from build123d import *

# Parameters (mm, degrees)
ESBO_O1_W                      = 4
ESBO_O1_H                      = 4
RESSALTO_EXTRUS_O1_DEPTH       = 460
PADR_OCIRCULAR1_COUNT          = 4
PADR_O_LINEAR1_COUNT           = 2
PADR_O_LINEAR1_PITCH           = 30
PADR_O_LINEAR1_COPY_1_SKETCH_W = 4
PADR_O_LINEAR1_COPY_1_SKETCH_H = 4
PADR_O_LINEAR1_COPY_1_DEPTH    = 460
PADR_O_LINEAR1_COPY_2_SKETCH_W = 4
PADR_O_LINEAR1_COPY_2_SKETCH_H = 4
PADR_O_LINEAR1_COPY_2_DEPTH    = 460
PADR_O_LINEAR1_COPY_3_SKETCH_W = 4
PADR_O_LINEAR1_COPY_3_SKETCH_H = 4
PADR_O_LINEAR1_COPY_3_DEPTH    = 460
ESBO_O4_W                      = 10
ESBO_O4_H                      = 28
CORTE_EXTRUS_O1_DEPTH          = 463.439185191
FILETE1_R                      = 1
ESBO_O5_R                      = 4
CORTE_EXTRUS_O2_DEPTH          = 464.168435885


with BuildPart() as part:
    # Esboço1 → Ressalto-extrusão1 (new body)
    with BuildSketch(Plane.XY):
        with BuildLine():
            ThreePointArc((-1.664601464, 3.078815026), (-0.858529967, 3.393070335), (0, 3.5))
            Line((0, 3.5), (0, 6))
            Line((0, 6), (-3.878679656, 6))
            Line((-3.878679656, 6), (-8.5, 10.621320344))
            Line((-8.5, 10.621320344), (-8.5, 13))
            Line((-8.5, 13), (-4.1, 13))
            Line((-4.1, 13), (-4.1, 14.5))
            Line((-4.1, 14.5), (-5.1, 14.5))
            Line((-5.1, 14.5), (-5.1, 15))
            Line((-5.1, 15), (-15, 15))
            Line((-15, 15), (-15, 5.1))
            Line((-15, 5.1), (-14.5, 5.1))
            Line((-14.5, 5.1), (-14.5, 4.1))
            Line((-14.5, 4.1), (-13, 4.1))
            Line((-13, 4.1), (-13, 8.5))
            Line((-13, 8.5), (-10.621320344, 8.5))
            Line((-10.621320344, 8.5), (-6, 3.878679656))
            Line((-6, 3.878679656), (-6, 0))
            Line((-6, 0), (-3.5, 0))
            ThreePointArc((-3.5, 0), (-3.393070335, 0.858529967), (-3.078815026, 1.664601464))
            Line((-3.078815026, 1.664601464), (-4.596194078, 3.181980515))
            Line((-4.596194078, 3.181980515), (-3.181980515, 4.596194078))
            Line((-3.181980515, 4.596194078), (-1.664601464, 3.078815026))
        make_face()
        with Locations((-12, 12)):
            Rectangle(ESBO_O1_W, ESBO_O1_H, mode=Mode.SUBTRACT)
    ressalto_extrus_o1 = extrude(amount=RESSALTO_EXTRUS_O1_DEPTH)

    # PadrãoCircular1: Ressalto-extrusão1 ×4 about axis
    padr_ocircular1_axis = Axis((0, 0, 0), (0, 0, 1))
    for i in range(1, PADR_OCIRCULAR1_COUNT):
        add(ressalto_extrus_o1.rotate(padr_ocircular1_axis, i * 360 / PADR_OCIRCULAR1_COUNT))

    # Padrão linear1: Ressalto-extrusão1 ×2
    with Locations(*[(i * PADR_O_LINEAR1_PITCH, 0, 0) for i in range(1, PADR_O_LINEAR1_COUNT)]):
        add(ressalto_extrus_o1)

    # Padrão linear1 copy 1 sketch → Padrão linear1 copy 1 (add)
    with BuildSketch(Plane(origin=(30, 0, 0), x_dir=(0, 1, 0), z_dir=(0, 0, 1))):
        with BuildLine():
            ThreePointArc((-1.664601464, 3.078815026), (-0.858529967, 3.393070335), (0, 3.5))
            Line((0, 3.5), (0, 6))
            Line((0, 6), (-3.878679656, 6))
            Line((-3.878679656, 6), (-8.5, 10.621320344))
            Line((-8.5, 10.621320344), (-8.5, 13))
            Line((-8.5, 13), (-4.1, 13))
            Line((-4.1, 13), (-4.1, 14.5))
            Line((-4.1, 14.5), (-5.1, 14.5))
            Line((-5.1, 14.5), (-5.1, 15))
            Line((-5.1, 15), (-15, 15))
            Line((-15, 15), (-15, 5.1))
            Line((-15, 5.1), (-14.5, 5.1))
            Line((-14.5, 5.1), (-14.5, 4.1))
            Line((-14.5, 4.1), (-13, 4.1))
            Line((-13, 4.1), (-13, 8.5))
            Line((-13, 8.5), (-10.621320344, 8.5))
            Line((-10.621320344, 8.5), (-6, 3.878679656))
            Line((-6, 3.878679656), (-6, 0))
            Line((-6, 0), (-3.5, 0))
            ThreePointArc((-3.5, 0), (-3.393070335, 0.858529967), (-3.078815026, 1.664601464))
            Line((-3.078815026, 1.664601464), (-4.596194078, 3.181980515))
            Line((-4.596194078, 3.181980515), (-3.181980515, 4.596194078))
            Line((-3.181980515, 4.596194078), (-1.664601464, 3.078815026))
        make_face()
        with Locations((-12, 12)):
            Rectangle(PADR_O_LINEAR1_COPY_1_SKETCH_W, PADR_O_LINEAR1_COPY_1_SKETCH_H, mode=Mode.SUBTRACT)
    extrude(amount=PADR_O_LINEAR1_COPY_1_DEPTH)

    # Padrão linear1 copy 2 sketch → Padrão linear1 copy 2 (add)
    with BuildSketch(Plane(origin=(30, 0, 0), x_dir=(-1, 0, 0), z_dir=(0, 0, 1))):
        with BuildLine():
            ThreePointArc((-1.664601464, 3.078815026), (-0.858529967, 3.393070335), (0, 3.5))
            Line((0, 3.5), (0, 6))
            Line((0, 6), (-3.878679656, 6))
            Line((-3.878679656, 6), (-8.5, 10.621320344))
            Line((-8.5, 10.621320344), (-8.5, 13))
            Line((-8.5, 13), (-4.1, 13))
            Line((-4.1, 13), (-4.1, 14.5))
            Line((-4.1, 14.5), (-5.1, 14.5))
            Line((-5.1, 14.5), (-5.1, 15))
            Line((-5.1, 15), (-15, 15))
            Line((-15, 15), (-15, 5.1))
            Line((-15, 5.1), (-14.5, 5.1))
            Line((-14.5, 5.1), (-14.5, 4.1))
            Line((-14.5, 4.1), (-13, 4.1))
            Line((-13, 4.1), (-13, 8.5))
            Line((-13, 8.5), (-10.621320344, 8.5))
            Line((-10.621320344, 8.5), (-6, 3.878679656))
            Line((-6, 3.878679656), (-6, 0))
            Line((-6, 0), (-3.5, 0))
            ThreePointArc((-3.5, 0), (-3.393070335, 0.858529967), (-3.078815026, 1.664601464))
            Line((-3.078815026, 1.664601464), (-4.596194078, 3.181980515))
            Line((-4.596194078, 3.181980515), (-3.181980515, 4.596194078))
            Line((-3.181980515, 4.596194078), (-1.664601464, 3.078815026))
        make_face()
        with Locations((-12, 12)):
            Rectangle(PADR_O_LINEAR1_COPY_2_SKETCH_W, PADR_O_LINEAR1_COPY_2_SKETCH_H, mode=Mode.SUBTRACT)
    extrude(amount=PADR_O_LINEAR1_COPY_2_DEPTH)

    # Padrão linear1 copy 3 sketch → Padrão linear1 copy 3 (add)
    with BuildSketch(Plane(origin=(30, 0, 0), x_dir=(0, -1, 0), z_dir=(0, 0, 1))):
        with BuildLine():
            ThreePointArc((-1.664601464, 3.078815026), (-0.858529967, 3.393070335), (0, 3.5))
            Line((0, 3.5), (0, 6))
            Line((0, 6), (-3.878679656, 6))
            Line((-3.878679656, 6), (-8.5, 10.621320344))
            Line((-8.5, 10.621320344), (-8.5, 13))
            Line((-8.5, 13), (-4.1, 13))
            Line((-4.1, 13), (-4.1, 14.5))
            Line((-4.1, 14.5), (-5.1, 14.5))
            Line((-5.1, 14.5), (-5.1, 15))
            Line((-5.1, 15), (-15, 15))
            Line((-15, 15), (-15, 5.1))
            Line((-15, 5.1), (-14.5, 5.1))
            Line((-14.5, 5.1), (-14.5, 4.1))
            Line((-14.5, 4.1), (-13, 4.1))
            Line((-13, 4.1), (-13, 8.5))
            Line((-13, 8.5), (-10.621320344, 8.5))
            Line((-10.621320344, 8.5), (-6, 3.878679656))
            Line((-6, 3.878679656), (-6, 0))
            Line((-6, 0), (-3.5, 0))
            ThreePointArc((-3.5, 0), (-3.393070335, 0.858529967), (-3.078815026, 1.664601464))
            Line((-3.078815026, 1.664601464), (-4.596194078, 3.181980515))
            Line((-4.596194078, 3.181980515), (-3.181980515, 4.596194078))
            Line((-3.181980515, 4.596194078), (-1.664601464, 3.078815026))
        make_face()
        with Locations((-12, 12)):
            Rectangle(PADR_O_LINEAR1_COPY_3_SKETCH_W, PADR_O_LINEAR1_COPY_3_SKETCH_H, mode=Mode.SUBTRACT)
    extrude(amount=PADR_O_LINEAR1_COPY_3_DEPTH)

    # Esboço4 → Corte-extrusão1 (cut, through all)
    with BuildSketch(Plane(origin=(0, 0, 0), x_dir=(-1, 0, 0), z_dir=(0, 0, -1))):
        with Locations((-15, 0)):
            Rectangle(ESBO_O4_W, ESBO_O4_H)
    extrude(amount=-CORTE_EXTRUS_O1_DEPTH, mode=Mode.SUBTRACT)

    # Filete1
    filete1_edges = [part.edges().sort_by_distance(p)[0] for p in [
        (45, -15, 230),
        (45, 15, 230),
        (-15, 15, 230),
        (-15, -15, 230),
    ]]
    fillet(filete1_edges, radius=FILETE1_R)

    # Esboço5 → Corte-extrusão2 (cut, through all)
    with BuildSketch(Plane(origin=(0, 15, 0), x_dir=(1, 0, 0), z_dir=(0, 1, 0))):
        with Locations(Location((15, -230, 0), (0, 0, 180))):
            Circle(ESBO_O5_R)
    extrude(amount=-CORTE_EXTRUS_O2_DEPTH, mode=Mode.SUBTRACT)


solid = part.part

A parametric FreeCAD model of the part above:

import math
import FreeCAD as App
import Part
import Sketcher
Q = App.Units.Quantity


def edges_at(feature, points):
    """Names of the edges that pass closest to the given points."""
    edges = feature.Shape.Edges
    near = lambda p: min(range(len(edges)), key=lambda i: edges[i].distToShape(Part.Vertex(*p))[0])
    return sorted({f"Edge{near(p) + 1}" for p in points})


def add_polygon(sketch, points):
    """Adds a closed chain of lines whose ends are joined by coincident constraints."""
    first, n = sketch.GeometryCount, len(points)
    for a, b in zip(points, points[1:] + points[:1]):
        sketch.addGeometry(Part.LineSegment(App.Vector(*a, 0), App.Vector(*b, 0)), False)
    for i in range(n):
        sketch.addConstraint(Sketcher.Constraint("Coincident", first + i, 2, first + (i + 1) % n, 1))

doc = App.newDocument("Part")
body = doc.addObject("PartDesign::Body", "Body")

sketch1 = body.newObject("Sketcher::SketchObject", "Sketch")
sketch1.AttachmentSupport = (doc.getObject("XY_Plane"), [""])
sketch1.MapMode = "FlatFace"
sketch1.addGeometry(Part.ArcOfCircle(Part.Circle(App.Vector(0, 0, 0), App.Vector(0, 0, 1), 3.5), math.radians(90), math.radians(118)), False)
sketch1.addGeometry(Part.LineSegment(App.Vector(0, 3.5, 0), App.Vector(0, 6, 0)), False)
sketch1.addGeometry(Part.LineSegment(App.Vector(0, 6, 0), App.Vector(-3.9, 6, 0)), False)
sketch1.addGeometry(Part.LineSegment(App.Vector(-3.9, 6, 0), App.Vector(-8.5, 10.6, 0)), False)
sketch1.addGeometry(Part.LineSegment(App.Vector(-8.5, 10.6, 0), App.Vector(-8.5, 13, 0)), False)
sketch1.addGeometry(Part.LineSegment(App.Vector(-8.5, 13, 0), App.Vector(-4.1, 13, 0)), False)
sketch1.addGeometry(Part.LineSegment(App.Vector(-4.1, 13, 0), App.Vector(-4.1, 14.5, 0)), False)
sketch1.addGeometry(Part.LineSegment(App.Vector(-4.1, 14.5, 0), App.Vector(-5.1, 14.5, 0)), False)
sketch1.addGeometry(Part.LineSegment(App.Vector(-5.1, 14.5, 0), App.Vector(-5.1, 15, 0)), False)
sketch1.addGeometry(Part.LineSegment(App.Vector(-5.1, 15, 0), App.Vector(-15, 15, 0)), False)
sketch1.addGeometry(Part.LineSegment(App.Vector(-15, 15, 0), App.Vector(-15, 5.1, 0)), False)
sketch1.addGeometry(Part.LineSegment(App.Vector(-15, 5.1, 0), App.Vector(-14.5, 5.1, 0)), False)
sketch1.addGeometry(Part.LineSegment(App.Vector(-14.5, 5.1, 0), App.Vector(-14.5, 4.1, 0)), False)
sketch1.addGeometry(Part.LineSegment(App.Vector(-14.5, 4.1, 0), App.Vector(-13, 4.1, 0)), False)
sketch1.addGeometry(Part.LineSegment(App.Vector(-13, 4.1, 0), App.Vector(-13, 8.5, 0)), False)
sketch1.addGeometry(Part.LineSegment(App.Vector(-13, 8.5, 0), App.Vector(-10.6, 8.5, 0)), False)
sketch1.addGeometry(Part.LineSegment(App.Vector(-10.6, 8.5, 0), App.Vector(-6, 3.9, 0)), False)
sketch1.addGeometry(Part.LineSegment(App.Vector(-6, 3.9, 0), App.Vector(-6, 0, 0)), False)
sketch1.addGeometry(Part.LineSegment(App.Vector(-6, 0, 0), App.Vector(-3.5, 0, 0)), False)
sketch1.addGeometry(Part.ArcOfCircle(Part.Circle(App.Vector(0, 0, 0), App.Vector(0, 0, 1), 3.5), math.radians(152), math.radians(180)), False)
sketch1.addGeometry(Part.LineSegment(App.Vector(-3.1, 1.7, 0), App.Vector(-4.6, 3.2, 0)), False)
sketch1.addGeometry(Part.LineSegment(App.Vector(-4.6, 3.2, 0), App.Vector(-3.2, 4.6, 0)), False)
sketch1.addGeometry(Part.LineSegment(App.Vector(-3.2, 4.6, 0), App.Vector(-1.7, 3.1, 0)), False)
add_polygon(sketch1, [(-10, 10), (-14, 10), (-14, 14), (-10, 14)])
sketch1.addConstraint([
    Sketcher.Constraint("Coincident", 0, 1, 1, 1),
    Sketcher.Constraint("Coincident", 1, 2, 2, 1),
    Sketcher.Constraint("Coincident", 2, 2, 3, 1),
    Sketcher.Constraint("Coincident", 3, 2, 4, 1),
    Sketcher.Constraint("Coincident", 4, 2, 5, 1),
    Sketcher.Constraint("Coincident", 5, 2, 6, 1),
    Sketcher.Constraint("Coincident", 6, 2, 7, 1),
    Sketcher.Constraint("Coincident", 7, 2, 8, 1),
    Sketcher.Constraint("Coincident", 8, 2, 9, 1),
    Sketcher.Constraint("Coincident", 9, 2, 10, 1),
    Sketcher.Constraint("Coincident", 10, 2, 11, 1),
    Sketcher.Constraint("Coincident", 11, 2, 12, 1),
    Sketcher.Constraint("Coincident", 12, 2, 13, 1),
    Sketcher.Constraint("Coincident", 13, 2, 14, 1),
    Sketcher.Constraint("Coincident", 14, 2, 15, 1),
    Sketcher.Constraint("Coincident", 15, 2, 16, 1),
    Sketcher.Constraint("Coincident", 16, 2, 17, 1),
    Sketcher.Constraint("Coincident", 17, 2, 18, 1),
    Sketcher.Constraint("Coincident", 18, 2, 19, 2),
    Sketcher.Constraint("Coincident", 19, 1, 20, 1),
    Sketcher.Constraint("Coincident", 20, 2, 21, 1),
    Sketcher.Constraint("Coincident", 21, 2, 22, 1),
    Sketcher.Constraint("Coincident", 22, 2, 0, 2),
    Sketcher.Constraint("Vertical", 1),
    Sketcher.Constraint("Horizontal", 2),
    Sketcher.Constraint("Vertical", 4),
    Sketcher.Constraint("Horizontal", 5),
    Sketcher.Constraint("Vertical", 6),
    Sketcher.Constraint("Horizontal", 7),
    Sketcher.Constraint("Vertical", 8),
    Sketcher.Constraint("Horizontal", 9),
    Sketcher.Constraint("Vertical", 10),
    Sketcher.Constraint("Horizontal", 11),
    Sketcher.Constraint("Vertical", 12),
    Sketcher.Constraint("Horizontal", 13),
    Sketcher.Constraint("Vertical", 14),
    Sketcher.Constraint("Horizontal", 15),
    Sketcher.Constraint("Vertical", 17),
    Sketcher.Constraint("Horizontal", 18),
    Sketcher.Constraint("Horizontal", 23),
    Sketcher.Constraint("Vertical", 24),
    Sketcher.Constraint("Horizontal", 25),
    Sketcher.Constraint("Vertical", 26),
    Sketcher.Constraint("Coincident", 0, 3, -1, 1),
    Sketcher.Constraint("Coincident", 19, 3, -1, 1),
    Sketcher.Constraint("Equal", 0, 19),
    Sketcher.Constraint("PointOnObject", 0, 1, -2),
    Sketcher.Constraint("PointOnObject", 17, 2, -1),
    Sketcher.Constraint("Parallel", 3, 16),
    Sketcher.Constraint("Parallel", 16, 20),
    Sketcher.Constraint("Perpendicular", 20, 21),
    Sketcher.Constraint("Perpendicular", 21, 22),
    Sketcher.Constraint("Equal", 18, 1),
    Sketcher.Constraint("Equal", 15, 4),
    Sketcher.Constraint("Equal", 13, 6),
    Sketcher.Constraint("Equal", 11, 8),
    Sketcher.Constraint("Equal", 9, 10),
    Sketcher.Constraint("Equal", 7, 12),
    Sketcher.Constraint("Equal", 5, 14),
    Sketcher.Constraint("Equal", 2, 17),
    Sketcher.Constraint("Equal", 25, 24),
    Sketcher.Constraint("Equal", 20, 22),
    Sketcher.Constraint("Radius", 0, Q("3.5 mm")),
    Sketcher.Constraint("DistanceX", 7, 2, 7, 1, Q("1 mm")),
    Sketcher.Constraint("DistanceX", 23, 2, 23, 1, Q("4 mm")),
    Sketcher.Constraint("Angle", 3, Q("135 deg")),
    Sketcher.Constraint("Distance", 21, Q("2 mm")),
    Sketcher.Constraint("DistanceX", 5, 1, 5, 2, Q("4.4 mm")),
    Sketcher.Constraint("DistanceX", 9, 2, 9, 1, Q("9.9 mm")),
    Sketcher.Constraint("DistanceX", 11, 1, 11, 2, Q("0.5 mm")),
    Sketcher.Constraint("DistanceX", 13, 1, 13, 2, Q("1.5 mm")),
    Sketcher.Constraint("DistanceX", 18, 1, 18, 2, Q("2.5 mm")),
    Sketcher.Constraint("DistanceY", -1, 1, 4, 2, Q("13 mm")),
    Sketcher.Constraint("DistanceX", 23, 2, -1, 1, Q("14 mm")),
    Sketcher.Constraint("DistanceY", -1, 1, 23, 2, Q("10 mm")),
    Sketcher.Constraint("Distance", 20, Q("2.145898 mm")),
    Sketcher.Constraint("DistanceX", 2, 2, 2, 1, Q("3.87868 mm")),
])
pad1 = body.newObject("PartDesign::Pad", "Pad")
pad1.Profile = sketch1
pad1.Length = 460
doc.recompute()

polarpattern = body.newObject("PartDesign::PolarPattern", "PolarPattern")
polarpattern.Originals = [pad1]
polarpattern.Axis = (doc.getObject("Z_Axis"), [""])
polarpattern.Angle = 360
polarpattern.Occurrences = 4
body.Tip = polarpattern
doc.recompute()

linearpattern = body.newObject("PartDesign::LinearPattern", "LinearPattern")
linearpattern.Originals = [pad1]
linearpattern.Direction = (doc.getObject("X_Axis"), [""])
linearpattern.Mode = "offset"
linearpattern.Offset = 30
linearpattern.Occurrences = 2
body.Tip = linearpattern

sketch2 = body.newObject("Sketcher::SketchObject", "Sketch001")
sketch2.AttachmentSupport = (doc.getObject("XY_Plane"), [""])
sketch2.MapMode = "FlatFace"
sketch2.addGeometry(Part.ArcOfCircle(Part.Circle(App.Vector(30, 0, 0), App.Vector(0, 0, 1), 3.5), math.radians(180), math.radians(208)), False)
sketch2.addGeometry(Part.LineSegment(App.Vector(26.5, 0, 0), App.Vector(24, 0, 0)), False)
sketch2.addGeometry(Part.LineSegment(App.Vector(24, 0, 0), App.Vector(24, -3.9, 0)), False)
sketch2.addGeometry(Part.LineSegment(App.Vector(24, -3.9, 0), App.Vector(19.4, -8.5, 0)), False)
sketch2.addGeometry(Part.LineSegment(App.Vector(19.4, -8.5, 0), App.Vector(17, -8.5, 0)), False)
sketch2.addGeometry(Part.LineSegment(App.Vector(17, -8.5, 0), App.Vector(17, -4.1, 0)), False)
sketch2.addGeometry(Part.LineSegment(App.Vector(17, -4.1, 0), App.Vector(15.5, -4.1, 0)), False)
sketch2.addGeometry(Part.LineSegment(App.Vector(15.5, -4.1, 0), App.Vector(15.5, -5.1, 0)), False)
sketch2.addGeometry(Part.LineSegment(App.Vector(15.5, -5.1, 0), App.Vector(15, -5.1, 0)), False)
sketch2.addGeometry(Part.LineSegment(App.Vector(15, -5.1, 0), App.Vector(15, -15, 0)), False)
sketch2.addGeometry(Part.LineSegment(App.Vector(15, -15, 0), App.Vector(24.9, -15, 0)), False)
sketch2.addGeometry(Part.LineSegment(App.Vector(24.9, -15, 0), App.Vector(24.9, -14.5, 0)), False)
sketch2.addGeometry(Part.LineSegment(App.Vector(24.9, -14.5, 0), App.Vector(25.9, -14.5, 0)), False)
sketch2.addGeometry(Part.LineSegment(App.Vector(25.9, -14.5, 0), App.Vector(25.9, -13, 0)), False)
sketch2.addGeometry(Part.LineSegment(App.Vector(25.9, -13, 0), App.Vector(21.5, -13, 0)), False)
sketch2.addGeometry(Part.LineSegment(App.Vector(21.5, -13, 0), App.Vector(21.5, -10.6, 0)), False)
sketch2.addGeometry(Part.LineSegment(App.Vector(21.5, -10.6, 0), App.Vector(26.1, -6, 0)), False)
sketch2.addGeometry(Part.LineSegment(App.Vector(26.1, -6, 0), App.Vector(30, -6, 0)), False)
sketch2.addGeometry(Part.LineSegment(App.Vector(30, -6, 0), App.Vector(30, -3.5, 0)), False)
sketch2.addGeometry(Part.ArcOfCircle(Part.Circle(App.Vector(30, 0, 0), App.Vector(0, 0, 1), 3.5), math.radians(-118), math.radians(-90)), False)
sketch2.addGeometry(Part.LineSegment(App.Vector(28.3, -3.1, 0), App.Vector(26.8, -4.6, 0)), False)
sketch2.addGeometry(Part.LineSegment(App.Vector(26.8, -4.6, 0), App.Vector(25.4, -3.2, 0)), False)
sketch2.addGeometry(Part.LineSegment(App.Vector(25.4, -3.2, 0), App.Vector(26.9, -1.7, 0)), False)
add_polygon(sketch2, [(20, -10), (20, -14), (16, -14), (16, -10)])
sketch2.addConstraint([
    Sketcher.Constraint("Coincident", 0, 1, 1, 1),
    Sketcher.Constraint("Coincident", 1, 2, 2, 1),
    Sketcher.Constraint("Coincident", 2, 2, 3, 1),
    Sketcher.Constraint("Coincident", 3, 2, 4, 1),
    Sketcher.Constraint("Coincident", 4, 2, 5, 1),
    Sketcher.Constraint("Coincident", 5, 2, 6, 1),
    Sketcher.Constraint("Coincident", 6, 2, 7, 1),
    Sketcher.Constraint("Coincident", 7, 2, 8, 1),
    Sketcher.Constraint("Coincident", 8, 2, 9, 1),
    Sketcher.Constraint("Coincident", 9, 2, 10, 1),
    Sketcher.Constraint("Coincident", 10, 2, 11, 1),
    Sketcher.Constraint("Coincident", 11, 2, 12, 1),
    Sketcher.Constraint("Coincident", 12, 2, 13, 1),
    Sketcher.Constraint("Coincident", 13, 2, 14, 1),
    Sketcher.Constraint("Coincident", 14, 2, 15, 1),
    Sketcher.Constraint("Coincident", 15, 2, 16, 1),
    Sketcher.Constraint("Coincident", 16, 2, 17, 1),
    Sketcher.Constraint("Coincident", 17, 2, 18, 1),
    Sketcher.Constraint("Coincident", 18, 2, 19, 2),
    Sketcher.Constraint("Coincident", 19, 1, 20, 1),
    Sketcher.Constraint("Coincident", 20, 2, 21, 1),
    Sketcher.Constraint("Coincident", 21, 2, 22, 1),
    Sketcher.Constraint("Coincident", 22, 2, 0, 2),
    Sketcher.Constraint("Horizontal", 1),
    Sketcher.Constraint("Vertical", 2),
    Sketcher.Constraint("Horizontal", 4),
    Sketcher.Constraint("Vertical", 5),
    Sketcher.Constraint("Horizontal", 6),
    Sketcher.Constraint("Vertical", 7),
    Sketcher.Constraint("Horizontal", 8),
    Sketcher.Constraint("Vertical", 9),
    Sketcher.Constraint("Horizontal", 10),
    Sketcher.Constraint("Vertical", 11),
    Sketcher.Constraint("Horizontal", 12),
    Sketcher.Constraint("Vertical", 13),
    Sketcher.Constraint("Horizontal", 14),
    Sketcher.Constraint("Vertical", 15),
    Sketcher.Constraint("Horizontal", 17),
    Sketcher.Constraint("Vertical", 18),
    Sketcher.Constraint("Vertical", 23),
    Sketcher.Constraint("Horizontal", 24),
    Sketcher.Constraint("Vertical", 25),
    Sketcher.Constraint("Horizontal", 26),
    Sketcher.Constraint("Coincident", 19, 3, 0, 3),
    Sketcher.Constraint("Equal", 0, 19),
    Sketcher.Constraint("PointOnObject", 0, 3, -1),
    Sketcher.Constraint("PointOnObject", 0, 1, -1),
    Sketcher.Constraint("Parallel", 3, 16),
    Sketcher.Constraint("Parallel", 16, 20),
    Sketcher.Constraint("Perpendicular", 20, 21),
    Sketcher.Constraint("Perpendicular", 21, 22),
    Sketcher.Constraint("Vertical", 19, 3, 17, 2),
    Sketcher.Constraint("Equal", 17, 2),
    Sketcher.Constraint("Equal", 14, 5),
    Sketcher.Constraint("Equal", 12, 7),
    Sketcher.Constraint("Equal", 10, 9),
    Sketcher.Constraint("Equal", 8, 11),
    Sketcher.Constraint("Equal", 6, 13),
    Sketcher.Constraint("Equal", 4, 15),
    Sketcher.Constraint("Equal", 1, 18),
    Sketcher.Constraint("Equal", 26, 23),
    Sketcher.Constraint("Equal", 20, 22),
    Sketcher.Constraint("Radius", 0, Q("3.5 mm")),
    Sketcher.Constraint("DistanceX", 12, 1, 12, 2, Q("1 mm")),
    Sketcher.Constraint("DistanceX", 24, 2, 24, 1, Q("4 mm")),
    Sketcher.Constraint("Angle", 3, Q("-135 deg")),
    Sketcher.Constraint("Distance", 21, Q("2 mm")),
    Sketcher.Constraint("DistanceX", 1, 2, 1, 1, Q("2.5 mm")),
    Sketcher.Constraint("DistanceX", 6, 2, 6, 1, Q("1.5 mm")),
    Sketcher.Constraint("DistanceX", 8, 2, 8, 1, Q("0.5 mm")),
    Sketcher.Constraint("DistanceX", 10, 1, 10, 2, Q("9.9 mm")),
    Sketcher.Constraint("DistanceX", 14, 2, 14, 1, Q("4.4 mm")),
    Sketcher.Constraint("DistanceX", -1, 1, 0, 3, Q("30 mm")),
    Sketcher.Constraint("DistanceX", -1, 1, 4, 2, Q("17 mm")),
    Sketcher.Constraint("DistanceX", -1, 1, 23, 2, Q("20 mm")),
    Sketcher.Constraint("DistanceY", 23, 2, -1, 1, Q("14 mm")),
    Sketcher.Constraint("Distance", 20, Q("2.145898 mm")),
    Sketcher.Constraint("DistanceX", 4, 2, 4, 1, Q("2.37868 mm")),
])
pad2 = body.newObject("PartDesign::Pad", "Pad001")
pad2.Profile = sketch2
pad2.Length = 460

sketch3 = body.newObject("Sketcher::SketchObject", "Sketch002")
sketch3.AttachmentSupport = (doc.getObject("XY_Plane"), [""])
sketch3.MapMode = "FlatFace"
sketch3.addGeometry(Part.ArcOfCircle(Part.Circle(App.Vector(30, 0, 0), App.Vector(0, 0, 1), 3.5), math.radians(-90), math.radians(-62)), False)
sketch3.addGeometry(Part.LineSegment(App.Vector(30, -3.5, 0), App.Vector(30, -6, 0)), False)
sketch3.addGeometry(Part.LineSegment(App.Vector(30, -6, 0), App.Vector(33.9, -6, 0)), False)
sketch3.addGeometry(Part.LineSegment(App.Vector(33.9, -6, 0), App.Vector(38.5, -10.6, 0)), False)
sketch3.addGeometry(Part.LineSegment(App.Vector(38.5, -10.6, 0), App.Vector(38.5, -13, 0)), False)
sketch3.addGeometry(Part.LineSegment(App.Vector(38.5, -13, 0), App.Vector(34.1, -13, 0)), False)
sketch3.addGeometry(Part.LineSegment(App.Vector(34.1, -13, 0), App.Vector(34.1, -14.5, 0)), False)
sketch3.addGeometry(Part.LineSegment(App.Vector(34.1, -14.5, 0), App.Vector(35.1, -14.5, 0)), False)
sketch3.addGeometry(Part.LineSegment(App.Vector(35.1, -14.5, 0), App.Vector(35.1, -15, 0)), False)
sketch3.addGeometry(Part.LineSegment(App.Vector(35.1, -15, 0), App.Vector(45, -15, 0)), False)
sketch3.addGeometry(Part.LineSegment(App.Vector(45, -15, 0), App.Vector(45, -5.1, 0)), False)
sketch3.addGeometry(Part.LineSegment(App.Vector(45, -5.1, 0), App.Vector(44.5, -5.1, 0)), False)
sketch3.addGeometry(Part.LineSegment(App.Vector(44.5, -5.1, 0), App.Vector(44.5, -4.1, 0)), False)
sketch3.addGeometry(Part.LineSegment(App.Vector(44.5, -4.1, 0), App.Vector(43, -4.1, 0)), False)
sketch3.addGeometry(Part.LineSegment(App.Vector(43, -4.1, 0), App.Vector(43, -8.5, 0)), False)
sketch3.addGeometry(Part.LineSegment(App.Vector(43, -8.5, 0), App.Vector(40.6, -8.5, 0)), False)
sketch3.addGeometry(Part.LineSegment(App.Vector(40.6, -8.5, 0), App.Vector(36, -3.9, 0)), False)
sketch3.addGeometry(Part.LineSegment(App.Vector(36, -3.9, 0), App.Vector(36, 0, 0)), False)
sketch3.addGeometry(Part.LineSegment(App.Vector(36, 0, 0), App.Vector(33.5, 0, 0)), False)
sketch3.addGeometry(Part.ArcOfCircle(Part.Circle(App.Vector(30, 0, 0), App.Vector(0, 0, 1), 3.5), math.radians(-28), math.radians(0)), False)
sketch3.addGeometry(Part.LineSegment(App.Vector(33.1, -1.7, 0), App.Vector(34.6, -3.2, 0)), False)
sketch3.addGeometry(Part.LineSegment(App.Vector(34.6, -3.2, 0), App.Vector(33.2, -4.6, 0)), False)
sketch3.addGeometry(Part.LineSegment(App.Vector(33.2, -4.6, 0), App.Vector(31.7, -3.1, 0)), False)
add_polygon(sketch3, [(40, -10), (44, -10), (44, -14), (40, -14)])
sketch3.addConstraint([
    Sketcher.Constraint("Coincident", 0, 1, 1, 1),
    Sketcher.Constraint("Coincident", 1, 2, 2, 1),
    Sketcher.Constraint("Coincident", 2, 2, 3, 1),
    Sketcher.Constraint("Coincident", 3, 2, 4, 1),
    Sketcher.Constraint("Coincident", 4, 2, 5, 1),
    Sketcher.Constraint("Coincident", 5, 2, 6, 1),
    Sketcher.Constraint("Coincident", 6, 2, 7, 1),
    Sketcher.Constraint("Coincident", 7, 2, 8, 1),
    Sketcher.Constraint("Coincident", 8, 2, 9, 1),
    Sketcher.Constraint("Coincident", 9, 2, 10, 1),
    Sketcher.Constraint("Coincident", 10, 2, 11, 1),
    Sketcher.Constraint("Coincident", 11, 2, 12, 1),
    Sketcher.Constraint("Coincident", 12, 2, 13, 1),
    Sketcher.Constraint("Coincident", 13, 2, 14, 1),
    Sketcher.Constraint("Coincident", 14, 2, 15, 1),
    Sketcher.Constraint("Coincident", 15, 2, 16, 1),
    Sketcher.Constraint("Coincident", 16, 2, 17, 1),
    Sketcher.Constraint("Coincident", 17, 2, 18, 1),
    Sketcher.Constraint("Coincident", 18, 2, 19, 2),
    Sketcher.Constraint("Coincident", 19, 1, 20, 1),
    Sketcher.Constraint("Coincident", 20, 2, 21, 1),
    Sketcher.Constraint("Coincident", 21, 2, 22, 1),
    Sketcher.Constraint("Coincident", 22, 2, 0, 2),
    Sketcher.Constraint("Vertical", 1),
    Sketcher.Constraint("Horizontal", 2),
    Sketcher.Constraint("Vertical", 4),
    Sketcher.Constraint("Horizontal", 5),
    Sketcher.Constraint("Vertical", 6),
    Sketcher.Constraint("Horizontal", 7),
    Sketcher.Constraint("Vertical", 8),
    Sketcher.Constraint("Horizontal", 9),
    Sketcher.Constraint("Vertical", 10),
    Sketcher.Constraint("Horizontal", 11),
    Sketcher.Constraint("Vertical", 12),
    Sketcher.Constraint("Horizontal", 13),
    Sketcher.Constraint("Vertical", 14),
    Sketcher.Constraint("Horizontal", 15),
    Sketcher.Constraint("Vertical", 17),
    Sketcher.Constraint("Horizontal", 18),
    Sketcher.Constraint("Horizontal", 23),
    Sketcher.Constraint("Vertical", 24),
    Sketcher.Constraint("Horizontal", 25),
    Sketcher.Constraint("Vertical", 26),
    Sketcher.Constraint("Coincident", 19, 3, 0, 3),
    Sketcher.Constraint("Equal", 0, 19),
    Sketcher.Constraint("PointOnObject", 0, 3, -1),
    Sketcher.Constraint("PointOnObject", 17, 2, -1),
    Sketcher.Constraint("Parallel", 3, 16),
    Sketcher.Constraint("Parallel", 16, 20),
    Sketcher.Constraint("Perpendicular", 20, 21),
    Sketcher.Constraint("Perpendicular", 21, 22),
    Sketcher.Constraint("Vertical", 19, 3, 0, 1),
    Sketcher.Constraint("Equal", 18, 1),
    Sketcher.Constraint("Equal", 15, 4),
    Sketcher.Constraint("Equal", 13, 6),
    Sketcher.Constraint("Equal", 11, 8),
    Sketcher.Constraint("Equal", 9, 10),
    Sketcher.Constraint("Equal", 7, 12),
    Sketcher.Constraint("Equal", 5, 14),
    Sketcher.Constraint("Equal", 2, 17),
    Sketcher.Constraint("Equal", 25, 24),
    Sketcher.Constraint("Equal", 20, 22),
    Sketcher.Constraint("Radius", 0, Q("3.5 mm")),
    Sketcher.Constraint("DistanceX", 7, 1, 7, 2, Q("1 mm")),
    Sketcher.Constraint("DistanceX", 23, 1, 23, 2, Q("4 mm")),
    Sketcher.Constraint("Angle", 3, Q("-45 deg")),
    Sketcher.Constraint("Distance", 21, Q("2 mm")),
    Sketcher.Constraint("DistanceX", 5, 2, 5, 1, Q("4.4 mm")),
    Sketcher.Constraint("DistanceX", 9, 1, 9, 2, Q("9.9 mm")),
    Sketcher.Constraint("DistanceX", 11, 2, 11, 1, Q("0.5 mm")),
    Sketcher.Constraint("DistanceX", 13, 2, 13, 1, Q("1.5 mm")),
    Sketcher.Constraint("DistanceX", 18, 2, 18, 1, Q("2.5 mm")),
    Sketcher.Constraint("DistanceX", -1, 1, 0, 3, Q("30 mm")),
    Sketcher.Constraint("DistanceY", 4, 2, -1, 1, Q("13 mm")),
    Sketcher.Constraint("DistanceX", -1, 1, 23, 2, Q("44 mm")),
    Sketcher.Constraint("DistanceY", 23, 2, -1, 1, Q("10 mm")),
    Sketcher.Constraint("Distance", 20, Q("2.145898 mm")),
    Sketcher.Constraint("DistanceX", 2, 1, 2, 2, Q("3.87868 mm")),
])
pad3 = body.newObject("PartDesign::Pad", "Pad002")
pad3.Profile = sketch3
pad3.Length = 460

sketch4 = body.newObject("Sketcher::SketchObject", "Sketch003")
sketch4.AttachmentSupport = (doc.getObject("XY_Plane"), [""])
sketch4.MapMode = "FlatFace"
sketch4.addGeometry(Part.ArcOfCircle(Part.Circle(App.Vector(30, 0, 0), App.Vector(0, 0, 1), 3.5), math.radians(0), math.radians(28)), False)
sketch4.addGeometry(Part.LineSegment(App.Vector(33.5, 0, 0), App.Vector(36, 0, 0)), False)
sketch4.addGeometry(Part.LineSegment(App.Vector(36, 0, 0), App.Vector(36, 3.9, 0)), False)
sketch4.addGeometry(Part.LineSegment(App.Vector(36, 3.9, 0), App.Vector(40.6, 8.5, 0)), False)
sketch4.addGeometry(Part.LineSegment(App.Vector(40.6, 8.5, 0), App.Vector(43, 8.5, 0)), False)
sketch4.addGeometry(Part.LineSegment(App.Vector(43, 8.5, 0), App.Vector(43, 4.1, 0)), False)
sketch4.addGeometry(Part.LineSegment(App.Vector(43, 4.1, 0), App.Vector(44.5, 4.1, 0)), False)
sketch4.addGeometry(Part.LineSegment(App.Vector(44.5, 4.1, 0), App.Vector(44.5, 5.1, 0)), False)
sketch4.addGeometry(Part.LineSegment(App.Vector(44.5, 5.1, 0), App.Vector(45, 5.1, 0)), False)
sketch4.addGeometry(Part.LineSegment(App.Vector(45, 5.1, 0), App.Vector(45, 15, 0)), False)
sketch4.addGeometry(Part.LineSegment(App.Vector(45, 15, 0), App.Vector(35.1, 15, 0)), False)
sketch4.addGeometry(Part.LineSegment(App.Vector(35.1, 15, 0), App.Vector(35.1, 14.5, 0)), False)
sketch4.addGeometry(Part.LineSegment(App.Vector(35.1, 14.5, 0), App.Vector(34.1, 14.5, 0)), False)
sketch4.addGeometry(Part.LineSegment(App.Vector(34.1, 14.5, 0), App.Vector(34.1, 13, 0)), False)
sketch4.addGeometry(Part.LineSegment(App.Vector(34.1, 13, 0), App.Vector(38.5, 13, 0)), False)
sketch4.addGeometry(Part.LineSegment(App.Vector(38.5, 13, 0), App.Vector(38.5, 10.6, 0)), False)
sketch4.addGeometry(Part.LineSegment(App.Vector(38.5, 10.6, 0), App.Vector(33.9, 6, 0)), False)
sketch4.addGeometry(Part.LineSegment(App.Vector(33.9, 6, 0), App.Vector(30, 6, 0)), False)
sketch4.addGeometry(Part.LineSegment(App.Vector(30, 6, 0), App.Vector(30, 3.5, 0)), False)
sketch4.addGeometry(Part.ArcOfCircle(Part.Circle(App.Vector(30, 0, 0), App.Vector(0, 0, 1), 3.5), math.radians(62), math.radians(90)), False)
sketch4.addGeometry(Part.LineSegment(App.Vector(31.7, 3.1, 0), App.Vector(33.2, 4.6, 0)), False)
sketch4.addGeometry(Part.LineSegment(App.Vector(33.2, 4.6, 0), App.Vector(34.6, 3.2, 0)), False)
sketch4.addGeometry(Part.LineSegment(App.Vector(34.6, 3.2, 0), App.Vector(33.1, 1.7, 0)), False)
add_polygon(sketch4, [(40, 10), (40, 14), (44, 14), (44, 10)])
sketch4.addConstraint([
    Sketcher.Constraint("Coincident", 0, 1, 1, 1),
    Sketcher.Constraint("Coincident", 1, 2, 2, 1),
    Sketcher.Constraint("Coincident", 2, 2, 3, 1),
    Sketcher.Constraint("Coincident", 3, 2, 4, 1),
    Sketcher.Constraint("Coincident", 4, 2, 5, 1),
    Sketcher.Constraint("Coincident", 5, 2, 6, 1),
    Sketcher.Constraint("Coincident", 6, 2, 7, 1),
    Sketcher.Constraint("Coincident", 7, 2, 8, 1),
    Sketcher.Constraint("Coincident", 8, 2, 9, 1),
    Sketcher.Constraint("Coincident", 9, 2, 10, 1),
    Sketcher.Constraint("Coincident", 10, 2, 11, 1),
    Sketcher.Constraint("Coincident", 11, 2, 12, 1),
    Sketcher.Constraint("Coincident", 12, 2, 13, 1),
    Sketcher.Constraint("Coincident", 13, 2, 14, 1),
    Sketcher.Constraint("Coincident", 14, 2, 15, 1),
    Sketcher.Constraint("Coincident", 15, 2, 16, 1),
    Sketcher.Constraint("Coincident", 16, 2, 17, 1),
    Sketcher.Constraint("Coincident", 17, 2, 18, 1),
    Sketcher.Constraint("Coincident", 18, 2, 19, 2),
    Sketcher.Constraint("Coincident", 19, 1, 20, 1),
    Sketcher.Constraint("Coincident", 20, 2, 21, 1),
    Sketcher.Constraint("Coincident", 21, 2, 22, 1),
    Sketcher.Constraint("Coincident", 22, 2, 0, 2),
    Sketcher.Constraint("Horizontal", 1),
    Sketcher.Constraint("Vertical", 2),
    Sketcher.Constraint("Horizontal", 4),
    Sketcher.Constraint("Vertical", 5),
    Sketcher.Constraint("Horizontal", 6),
    Sketcher.Constraint("Vertical", 7),
    Sketcher.Constraint("Horizontal", 8),
    Sketcher.Constraint("Vertical", 9),
    Sketcher.Constraint("Horizontal", 10),
    Sketcher.Constraint("Vertical", 11),
    Sketcher.Constraint("Horizontal", 12),
    Sketcher.Constraint("Vertical", 13),
    Sketcher.Constraint("Horizontal", 14),
    Sketcher.Constraint("Vertical", 15),
    Sketcher.Constraint("Horizontal", 17),
    Sketcher.Constraint("Vertical", 18),
    Sketcher.Constraint("Vertical", 23),
    Sketcher.Constraint("Horizontal", 24),
    Sketcher.Constraint("Vertical", 25),
    Sketcher.Constraint("Horizontal", 26),
    Sketcher.Constraint("Coincident", 19, 3, 0, 3),
    Sketcher.Constraint("Equal", 0, 19),
    Sketcher.Constraint("PointOnObject", 0, 3, -1),
    Sketcher.Constraint("PointOnObject", 0, 1, -1),
    Sketcher.Constraint("Parallel", 3, 16),
    Sketcher.Constraint("Parallel", 16, 20),
    Sketcher.Constraint("Perpendicular", 20, 21),
    Sketcher.Constraint("Perpendicular", 21, 22),
    Sketcher.Constraint("Vertical", 19, 3, 17, 2),
    Sketcher.Constraint("Equal", 17, 2),
    Sketcher.Constraint("Equal", 14, 5),
    Sketcher.Constraint("Equal", 12, 7),
    Sketcher.Constraint("Equal", 10, 9),
    Sketcher.Constraint("Equal", 8, 11),
    Sketcher.Constraint("Equal", 6, 13),
    Sketcher.Constraint("Equal", 4, 15),
    Sketcher.Constraint("Equal", 1, 18),
    Sketcher.Constraint("Equal", 26, 23),
    Sketcher.Constraint("Equal", 20, 22),
    Sketcher.Constraint("Radius", 0, Q("3.5 mm")),
    Sketcher.Constraint("DistanceX", 12, 2, 12, 1, Q("1 mm")),
    Sketcher.Constraint("DistanceX", 24, 1, 24, 2, Q("4 mm")),
    Sketcher.Constraint("Angle", 3, Q("45 deg")),
    Sketcher.Constraint("Distance", 21, Q("2 mm")),
    Sketcher.Constraint("DistanceX", 1, 1, 1, 2, Q("2.5 mm")),
    Sketcher.Constraint("DistanceX", 6, 1, 6, 2, Q("1.5 mm")),
    Sketcher.Constraint("DistanceX", 8, 1, 8, 2, Q("0.5 mm")),
    Sketcher.Constraint("DistanceX", 10, 2, 10, 1, Q("9.9 mm")),
    Sketcher.Constraint("DistanceX", 14, 1, 14, 2, Q("4.4 mm")),
    Sketcher.Constraint("DistanceX", -1, 1, 0, 3, Q("30 mm")),
    Sketcher.Constraint("DistanceX", -1, 1, 4, 2, Q("43 mm")),
    Sketcher.Constraint("DistanceX", -1, 1, 23, 2, Q("40 mm")),
    Sketcher.Constraint("DistanceY", -1, 1, 23, 2, Q("14 mm")),
    Sketcher.Constraint("Distance", 20, Q("2.145898 mm")),
    Sketcher.Constraint("DistanceX", 4, 1, 4, 2, Q("2.37868 mm")),
])
pad4 = body.newObject("PartDesign::Pad", "Pad003")
pad4.Profile = sketch4
pad4.Length = 460

sketch5 = body.newObject("Sketcher::SketchObject", "Sketch004")
sketch5.AttachmentSupport = (doc.getObject("XY_Plane"), [""])
sketch5.MapMode = "FlatFace"
add_polygon(sketch5, [(20, 14), (20, -14), (10, -14), (10, 14)])
sketch5.addConstraint([
    Sketcher.Constraint("Vertical", 0),
    Sketcher.Constraint("Horizontal", 1),
    Sketcher.Constraint("Vertical", 2),
    Sketcher.Constraint("Horizontal", 3),
    Sketcher.Constraint("DistanceX", 1, 2, 1, 1, Q("10 mm")),
    Sketcher.Constraint("DistanceY", 0, 2, 0, 1, Q("28 mm")),
    Sketcher.Constraint("DistanceX", -1, 1, 0, 2, Q("20 mm")),
    Sketcher.Constraint("DistanceY", 0, 2, -1, 1, Q("14 mm")),
])
pocket1 = body.newObject("PartDesign::Pocket", "Pocket")
pocket1.Profile = sketch5
pocket1.Type = "ThroughAll"
pocket1.Reversed = True
doc.recompute()

fillet = body.newObject("PartDesign::Fillet", "Fillet")
fillet.Base = (pocket1, edges_at(pocket1, [
    (45, -15, 230),
    (45, 15, 230),
    (-15, 15, 230),
    (-15, -15, 230),
]))
fillet.Radius = 1

sketch6 = body.newObject("Sketcher::SketchObject", "Sketch005")
sketch6.AttachmentSupport = (doc.getObject("XZ_Plane"), [""])
sketch6.MapMode = "FlatFace"
sketch6.AttachmentOffset = App.Placement(App.Vector(0, 0, -15), App.Rotation())
sketch6.addGeometry(Part.Circle(App.Vector(15, 230, 0), App.Vector(0, 0, 1), 4), False)
sketch6.addConstraint([
    Sketcher.Constraint("Diameter", 0, Q("8 mm")),
    Sketcher.Constraint("DistanceX", -1, 1, 0, 3, Q("15 mm")),
    Sketcher.Constraint("DistanceY", -1, 1, 0, 3, Q("230 mm")),
])
pocket2 = body.newObject("PartDesign::Pocket", "Pocket001")
pocket2.Profile = sketch6
pocket2.Type = "ThroughAll"
pocket2.Reversed = True

doc.recompute()
